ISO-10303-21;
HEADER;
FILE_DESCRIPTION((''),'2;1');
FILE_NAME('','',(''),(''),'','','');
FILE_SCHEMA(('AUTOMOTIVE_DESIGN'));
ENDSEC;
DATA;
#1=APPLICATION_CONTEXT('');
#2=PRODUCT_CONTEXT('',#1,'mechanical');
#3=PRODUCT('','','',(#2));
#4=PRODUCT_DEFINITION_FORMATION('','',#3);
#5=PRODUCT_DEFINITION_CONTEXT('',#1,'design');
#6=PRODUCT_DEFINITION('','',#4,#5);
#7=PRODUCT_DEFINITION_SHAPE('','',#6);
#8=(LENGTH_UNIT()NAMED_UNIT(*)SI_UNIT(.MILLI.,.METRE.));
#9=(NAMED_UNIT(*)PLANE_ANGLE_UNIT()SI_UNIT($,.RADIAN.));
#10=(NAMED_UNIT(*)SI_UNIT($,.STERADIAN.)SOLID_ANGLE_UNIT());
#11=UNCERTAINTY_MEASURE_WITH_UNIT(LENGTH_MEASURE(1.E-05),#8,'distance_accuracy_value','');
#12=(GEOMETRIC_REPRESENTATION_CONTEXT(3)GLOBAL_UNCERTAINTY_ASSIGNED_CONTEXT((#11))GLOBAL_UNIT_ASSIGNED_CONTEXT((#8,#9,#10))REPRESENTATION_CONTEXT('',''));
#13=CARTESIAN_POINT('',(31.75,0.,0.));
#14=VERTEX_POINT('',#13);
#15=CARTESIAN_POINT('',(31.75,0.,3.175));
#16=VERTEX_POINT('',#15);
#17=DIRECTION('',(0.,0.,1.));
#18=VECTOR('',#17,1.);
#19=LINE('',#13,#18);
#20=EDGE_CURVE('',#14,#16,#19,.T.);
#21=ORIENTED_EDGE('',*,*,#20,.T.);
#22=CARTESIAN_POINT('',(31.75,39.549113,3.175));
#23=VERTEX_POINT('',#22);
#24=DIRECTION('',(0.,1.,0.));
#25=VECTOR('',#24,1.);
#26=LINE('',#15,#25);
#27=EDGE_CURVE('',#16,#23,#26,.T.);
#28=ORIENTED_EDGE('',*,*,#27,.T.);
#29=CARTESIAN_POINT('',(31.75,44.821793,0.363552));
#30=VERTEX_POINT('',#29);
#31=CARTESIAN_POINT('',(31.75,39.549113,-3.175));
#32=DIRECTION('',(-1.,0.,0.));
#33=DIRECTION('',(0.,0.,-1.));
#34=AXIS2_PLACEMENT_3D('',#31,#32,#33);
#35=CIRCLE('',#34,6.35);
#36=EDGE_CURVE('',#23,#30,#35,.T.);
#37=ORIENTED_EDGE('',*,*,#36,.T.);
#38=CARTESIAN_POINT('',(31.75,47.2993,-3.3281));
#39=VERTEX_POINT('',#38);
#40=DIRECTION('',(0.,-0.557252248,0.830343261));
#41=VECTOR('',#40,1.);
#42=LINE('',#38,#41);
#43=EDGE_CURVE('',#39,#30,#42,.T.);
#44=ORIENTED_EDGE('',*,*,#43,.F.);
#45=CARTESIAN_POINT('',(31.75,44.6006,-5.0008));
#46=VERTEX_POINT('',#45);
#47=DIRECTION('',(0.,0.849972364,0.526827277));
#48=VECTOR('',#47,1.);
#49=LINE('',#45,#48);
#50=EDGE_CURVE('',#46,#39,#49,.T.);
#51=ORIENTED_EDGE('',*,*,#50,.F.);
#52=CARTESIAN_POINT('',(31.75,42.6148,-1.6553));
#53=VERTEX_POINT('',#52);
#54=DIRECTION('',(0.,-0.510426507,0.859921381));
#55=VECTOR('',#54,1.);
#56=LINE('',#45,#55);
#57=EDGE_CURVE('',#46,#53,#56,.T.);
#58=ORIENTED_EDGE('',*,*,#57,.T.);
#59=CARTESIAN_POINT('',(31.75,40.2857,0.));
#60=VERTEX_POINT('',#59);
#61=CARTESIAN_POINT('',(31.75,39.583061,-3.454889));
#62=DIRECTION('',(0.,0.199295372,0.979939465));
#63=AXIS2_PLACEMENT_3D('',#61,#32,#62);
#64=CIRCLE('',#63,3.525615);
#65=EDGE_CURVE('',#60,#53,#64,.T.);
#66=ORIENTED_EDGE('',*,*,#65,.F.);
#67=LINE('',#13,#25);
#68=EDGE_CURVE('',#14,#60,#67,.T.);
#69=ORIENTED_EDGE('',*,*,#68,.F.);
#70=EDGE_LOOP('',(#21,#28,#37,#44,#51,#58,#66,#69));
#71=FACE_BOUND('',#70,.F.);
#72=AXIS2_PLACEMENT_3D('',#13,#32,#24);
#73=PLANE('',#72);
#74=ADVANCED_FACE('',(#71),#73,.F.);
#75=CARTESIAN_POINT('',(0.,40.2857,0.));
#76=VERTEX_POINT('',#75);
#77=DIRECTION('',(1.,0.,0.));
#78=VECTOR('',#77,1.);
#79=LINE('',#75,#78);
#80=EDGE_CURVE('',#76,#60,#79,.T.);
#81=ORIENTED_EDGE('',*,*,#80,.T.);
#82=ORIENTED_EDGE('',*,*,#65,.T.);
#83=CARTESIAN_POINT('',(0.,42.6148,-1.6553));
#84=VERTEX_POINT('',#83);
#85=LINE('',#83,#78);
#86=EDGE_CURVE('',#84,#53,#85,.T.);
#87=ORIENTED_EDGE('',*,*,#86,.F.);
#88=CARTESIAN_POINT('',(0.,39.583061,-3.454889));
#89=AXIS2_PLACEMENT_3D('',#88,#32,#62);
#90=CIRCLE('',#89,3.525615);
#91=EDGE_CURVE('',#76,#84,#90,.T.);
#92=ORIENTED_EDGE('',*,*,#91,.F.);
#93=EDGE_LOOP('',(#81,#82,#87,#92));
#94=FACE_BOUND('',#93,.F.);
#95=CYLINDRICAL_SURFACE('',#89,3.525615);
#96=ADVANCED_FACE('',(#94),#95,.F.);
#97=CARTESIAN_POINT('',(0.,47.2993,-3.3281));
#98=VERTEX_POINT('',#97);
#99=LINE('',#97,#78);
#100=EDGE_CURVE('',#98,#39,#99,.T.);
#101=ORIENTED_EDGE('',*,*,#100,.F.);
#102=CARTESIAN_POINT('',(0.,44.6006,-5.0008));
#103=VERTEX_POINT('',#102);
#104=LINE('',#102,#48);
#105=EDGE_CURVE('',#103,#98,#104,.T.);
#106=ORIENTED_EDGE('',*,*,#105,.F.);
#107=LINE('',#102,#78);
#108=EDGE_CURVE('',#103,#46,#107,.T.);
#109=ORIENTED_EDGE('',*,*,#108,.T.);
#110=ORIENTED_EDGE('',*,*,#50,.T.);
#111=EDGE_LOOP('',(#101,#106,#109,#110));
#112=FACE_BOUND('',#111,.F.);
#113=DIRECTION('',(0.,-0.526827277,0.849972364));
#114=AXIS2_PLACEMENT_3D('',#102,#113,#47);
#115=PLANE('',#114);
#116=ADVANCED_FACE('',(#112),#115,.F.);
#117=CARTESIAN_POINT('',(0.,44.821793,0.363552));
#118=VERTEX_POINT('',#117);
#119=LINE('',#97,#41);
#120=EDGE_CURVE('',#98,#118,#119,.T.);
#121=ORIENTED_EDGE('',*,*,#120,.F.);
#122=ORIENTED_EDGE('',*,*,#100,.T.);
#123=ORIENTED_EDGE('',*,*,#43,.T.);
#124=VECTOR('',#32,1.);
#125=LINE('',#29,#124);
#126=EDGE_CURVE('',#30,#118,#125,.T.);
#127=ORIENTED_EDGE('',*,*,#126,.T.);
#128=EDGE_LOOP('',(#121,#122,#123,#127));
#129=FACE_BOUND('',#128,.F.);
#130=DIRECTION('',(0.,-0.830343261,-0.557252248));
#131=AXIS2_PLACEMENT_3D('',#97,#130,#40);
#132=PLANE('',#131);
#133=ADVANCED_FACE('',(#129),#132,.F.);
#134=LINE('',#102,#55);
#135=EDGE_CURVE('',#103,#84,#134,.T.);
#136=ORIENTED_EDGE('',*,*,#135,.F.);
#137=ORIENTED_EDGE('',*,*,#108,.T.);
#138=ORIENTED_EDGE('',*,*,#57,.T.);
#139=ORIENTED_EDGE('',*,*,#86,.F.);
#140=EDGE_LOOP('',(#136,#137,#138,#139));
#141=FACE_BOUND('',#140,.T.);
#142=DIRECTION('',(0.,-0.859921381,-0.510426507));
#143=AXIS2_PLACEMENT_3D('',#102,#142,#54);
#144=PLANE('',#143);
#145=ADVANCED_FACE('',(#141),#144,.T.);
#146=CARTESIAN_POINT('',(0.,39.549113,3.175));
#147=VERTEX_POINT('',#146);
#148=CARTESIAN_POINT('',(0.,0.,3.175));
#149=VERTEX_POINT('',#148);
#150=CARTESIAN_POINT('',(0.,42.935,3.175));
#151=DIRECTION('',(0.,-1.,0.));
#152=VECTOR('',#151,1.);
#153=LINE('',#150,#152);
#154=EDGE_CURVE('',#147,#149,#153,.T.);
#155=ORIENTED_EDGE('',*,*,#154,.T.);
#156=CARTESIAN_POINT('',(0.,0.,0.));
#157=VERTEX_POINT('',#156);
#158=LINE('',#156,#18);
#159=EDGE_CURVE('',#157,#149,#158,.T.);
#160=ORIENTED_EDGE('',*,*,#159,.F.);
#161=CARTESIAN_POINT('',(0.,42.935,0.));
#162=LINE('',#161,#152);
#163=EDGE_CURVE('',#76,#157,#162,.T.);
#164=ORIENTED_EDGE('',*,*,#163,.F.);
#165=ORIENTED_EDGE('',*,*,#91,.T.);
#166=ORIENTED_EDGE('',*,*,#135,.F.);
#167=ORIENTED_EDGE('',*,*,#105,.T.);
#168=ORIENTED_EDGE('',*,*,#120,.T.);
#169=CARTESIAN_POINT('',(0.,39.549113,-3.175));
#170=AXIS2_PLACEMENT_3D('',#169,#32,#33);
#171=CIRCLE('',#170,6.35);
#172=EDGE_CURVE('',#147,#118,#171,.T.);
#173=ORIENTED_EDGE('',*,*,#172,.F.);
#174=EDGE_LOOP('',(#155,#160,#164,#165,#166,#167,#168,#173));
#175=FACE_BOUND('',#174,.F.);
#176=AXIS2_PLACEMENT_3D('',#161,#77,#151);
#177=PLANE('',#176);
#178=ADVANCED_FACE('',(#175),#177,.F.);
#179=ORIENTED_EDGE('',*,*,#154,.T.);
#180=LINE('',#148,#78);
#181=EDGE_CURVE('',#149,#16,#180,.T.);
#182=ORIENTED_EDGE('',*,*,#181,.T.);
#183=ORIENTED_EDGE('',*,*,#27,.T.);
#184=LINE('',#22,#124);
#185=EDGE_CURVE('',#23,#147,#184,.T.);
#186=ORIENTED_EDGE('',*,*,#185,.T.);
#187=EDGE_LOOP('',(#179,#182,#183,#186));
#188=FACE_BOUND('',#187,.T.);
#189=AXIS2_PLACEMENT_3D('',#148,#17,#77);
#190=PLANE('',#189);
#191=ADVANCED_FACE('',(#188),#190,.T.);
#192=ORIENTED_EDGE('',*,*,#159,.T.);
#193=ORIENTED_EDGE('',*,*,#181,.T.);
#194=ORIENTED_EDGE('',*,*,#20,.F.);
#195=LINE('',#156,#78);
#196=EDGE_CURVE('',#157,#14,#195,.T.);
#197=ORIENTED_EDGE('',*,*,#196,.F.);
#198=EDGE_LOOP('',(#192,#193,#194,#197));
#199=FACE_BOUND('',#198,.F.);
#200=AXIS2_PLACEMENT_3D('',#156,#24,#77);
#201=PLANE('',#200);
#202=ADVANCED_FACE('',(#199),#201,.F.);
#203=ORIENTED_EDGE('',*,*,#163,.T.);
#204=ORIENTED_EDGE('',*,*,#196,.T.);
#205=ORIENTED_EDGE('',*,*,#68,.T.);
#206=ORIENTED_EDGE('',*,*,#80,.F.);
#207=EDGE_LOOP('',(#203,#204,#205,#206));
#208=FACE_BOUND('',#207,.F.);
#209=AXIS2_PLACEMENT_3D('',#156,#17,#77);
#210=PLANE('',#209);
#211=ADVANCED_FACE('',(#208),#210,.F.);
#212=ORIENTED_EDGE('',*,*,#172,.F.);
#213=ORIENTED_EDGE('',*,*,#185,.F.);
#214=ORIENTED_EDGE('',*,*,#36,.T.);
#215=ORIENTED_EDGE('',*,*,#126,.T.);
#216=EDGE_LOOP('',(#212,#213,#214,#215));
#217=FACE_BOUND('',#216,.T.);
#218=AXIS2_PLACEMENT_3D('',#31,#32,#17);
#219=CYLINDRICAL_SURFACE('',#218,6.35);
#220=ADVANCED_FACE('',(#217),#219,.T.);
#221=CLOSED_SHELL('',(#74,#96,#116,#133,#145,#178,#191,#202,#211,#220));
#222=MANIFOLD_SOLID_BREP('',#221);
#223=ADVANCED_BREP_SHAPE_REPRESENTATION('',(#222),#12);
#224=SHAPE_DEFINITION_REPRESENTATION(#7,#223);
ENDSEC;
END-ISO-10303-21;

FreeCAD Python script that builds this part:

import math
import FreeCAD as App
import Part
import Sketcher

V = App.Vector
Q = App.Units.Quantity


def edges_at(feature, points):
    """Names of the edges that pass closest to the given points."""
    edges = feature.Shape.Edges
    near = lambda p: min(range(len(edges)), key=lambda i: edges[i].distToShape(Part.Vertex(*p))[0])
    return sorted({f"Edge{near(p) + 1}" for p in points})

doc = App.newDocument("Part")
body = doc.addObject("PartDesign::Body", "Body")

# Sketch on XY plane
sketch1 = body.newObject("Sketcher::SketchObject", "Sketch")
sketch1.AttachmentSupport = (doc.getObject("XY_Plane"), [""])
sketch1.MapMode = "FlatFace"
sketch1.addGeometry(Part.LineSegment(V(0, 43, 0), V(0, 0, 0)), False)
sketch1.addGeometry(Part.LineSegment(V(0, 0, 0), V(32, 0, 0)), False)
sketch1.addGeometry(Part.LineSegment(V(32, 0, 0), V(32, 43, 0)), False)
sketch1.addGeometry(Part.LineSegment(V(32, 43, 0), V(0, 43, 0)), False)
sketch1.addConstraint(Sketcher.Constraint("Coincident", 0, 2, 1, 1))
sketch1.addConstraint(Sketcher.Constraint("Coincident", 1, 2, 2, 1))
sketch1.addConstraint(Sketcher.Constraint("Coincident", 2, 2, 3, 1))
sketch1.addConstraint(Sketcher.Constraint("Coincident", 3, 2, 0, 1))
sketch1.addConstraint(Sketcher.Constraint("Vertical", 0))
sketch1.addConstraint(Sketcher.Constraint("Horizontal", 1))
sketch1.addConstraint(Sketcher.Constraint("Vertical", 2))
sketch1.addConstraint(Sketcher.Constraint("Horizontal", 3))
sketch1.addConstraint(Sketcher.Constraint("Coincident", 0, 2, -1, 1))
sketch1.addConstraint(Sketcher.Constraint("DistanceX", 1, 1, 1, 2, Q("1.25 in")))
sketch1.addConstraint(Sketcher.Constraint("DistanceY", 0, 2, 0, 1, 42.935))
pad1 = body.newObject("PartDesign::Pad", "Pad")
pad1.Profile = sketch1
pad1.Length = Q("0.125 in")

# Sketch on YZ plane
sketch2 = body.newObject("Sketcher::SketchObject", "Sketch001")
sketch2.AttachmentSupport = (doc.getObject("YZ_Plane"), [""])
sketch2.MapMode = "FlatFace"
sketch2.addGeometry(Part.LineSegment(V(47.3, -3.3, 0), V(44.6, -5, 0)), False)
sketch2.addGeometry(Part.LineSegment(V(44.6, -5, 0), V(42.6, -1.7, 0)), False)
sketch2.addGeometry(Part.ArcOfCircle(Part.Circle(V(39.6, -3.5, 0), V(0, 0, 1), 3.5), math.radians(31), math.radians(79)), False)
sketch2.addGeometry(Part.LineSegment(V(40.3, 0, 0), V(42.9, 0, 0)), False)
sketch2.addGeometry(Part.LineSegment(V(42.9, 0, 0), V(42.9, 3.2, 0)), False)
sketch2.addGeometry(Part.LineSegment(V(42.9, 3.2, 0), V(47.3, -3.3, 0)), False)
sketch2.addConstraint(Sketcher.Constraint("Coincident", 0, 2, 1, 1))
sketch2.addConstraint(Sketcher.Constraint("Tangent", 1, 2, 2, 1))
sketch2.addConstraint(Sketcher.Constraint("Coincident", 2, 2, 3, 1))
sketch2.addConstraint(Sketcher.Constraint("Coincident", 3, 2, 4, 1))
sketch2.addConstraint(Sketcher.Constraint("Coincident", 4, 2, 5, 1))
sketch2.addConstraint(Sketcher.Constraint("Coincident", 5, 2, 0, 1))
sketch2.addConstraint(Sketcher.Constraint("Horizontal", 3))
sketch2.addConstraint(Sketcher.Constraint("Vertical", 4))
sketch2.addConstraint(Sketcher.Constraint("PointOnObject", 2, 2, -1))
sketch2.addConstraint(Sketcher.Constraint("DistanceY", 4, 1, 4, 2, Q("0.125 in")))
sketch2.addConstraint(Sketcher.Constraint("Distance", 0, Q("0.125 in")))
sketch2.addConstraint(Sketcher.Constraint("Radius", 2, Q("0.1388 in")))
sketch2.addConstraint(Sketcher.Constraint("DistanceX", 3, 1, 3, 2, Q("0.1043 in")))
sketch2.addConstraint(Sketcher.Constraint("DistanceY", 2, 3, 5, 2, Q("0.005 in")))
sketch2.addConstraint(Sketcher.Constraint("DistanceX", -1, 1, 2, 3, Q("1.5584 in")))
sketch2.addConstraint(Sketcher.Constraint("DistanceX", 2, 2, 1, 2, Q("0.0917 in")))
sketch2.addConstraint(Sketcher.Constraint("Distance", 1, 3.8905))
sketch2.addConstraint(Sketcher.Constraint("Distance", 5, 7.8318))
pad2 = body.newObject("PartDesign::Pad", "Pad001")
pad2.Profile = sketch2
pad2.Length = Q("1.25 in")
doc.recompute()

fillet = body.newObject("PartDesign::Fillet", "Fillet")
fillet.Base = (pad2, edges_at(pad2, [(15.875, 42.935, 3.175)]))
fillet.Radius = Q("0.25 in")

doc.recompute()
